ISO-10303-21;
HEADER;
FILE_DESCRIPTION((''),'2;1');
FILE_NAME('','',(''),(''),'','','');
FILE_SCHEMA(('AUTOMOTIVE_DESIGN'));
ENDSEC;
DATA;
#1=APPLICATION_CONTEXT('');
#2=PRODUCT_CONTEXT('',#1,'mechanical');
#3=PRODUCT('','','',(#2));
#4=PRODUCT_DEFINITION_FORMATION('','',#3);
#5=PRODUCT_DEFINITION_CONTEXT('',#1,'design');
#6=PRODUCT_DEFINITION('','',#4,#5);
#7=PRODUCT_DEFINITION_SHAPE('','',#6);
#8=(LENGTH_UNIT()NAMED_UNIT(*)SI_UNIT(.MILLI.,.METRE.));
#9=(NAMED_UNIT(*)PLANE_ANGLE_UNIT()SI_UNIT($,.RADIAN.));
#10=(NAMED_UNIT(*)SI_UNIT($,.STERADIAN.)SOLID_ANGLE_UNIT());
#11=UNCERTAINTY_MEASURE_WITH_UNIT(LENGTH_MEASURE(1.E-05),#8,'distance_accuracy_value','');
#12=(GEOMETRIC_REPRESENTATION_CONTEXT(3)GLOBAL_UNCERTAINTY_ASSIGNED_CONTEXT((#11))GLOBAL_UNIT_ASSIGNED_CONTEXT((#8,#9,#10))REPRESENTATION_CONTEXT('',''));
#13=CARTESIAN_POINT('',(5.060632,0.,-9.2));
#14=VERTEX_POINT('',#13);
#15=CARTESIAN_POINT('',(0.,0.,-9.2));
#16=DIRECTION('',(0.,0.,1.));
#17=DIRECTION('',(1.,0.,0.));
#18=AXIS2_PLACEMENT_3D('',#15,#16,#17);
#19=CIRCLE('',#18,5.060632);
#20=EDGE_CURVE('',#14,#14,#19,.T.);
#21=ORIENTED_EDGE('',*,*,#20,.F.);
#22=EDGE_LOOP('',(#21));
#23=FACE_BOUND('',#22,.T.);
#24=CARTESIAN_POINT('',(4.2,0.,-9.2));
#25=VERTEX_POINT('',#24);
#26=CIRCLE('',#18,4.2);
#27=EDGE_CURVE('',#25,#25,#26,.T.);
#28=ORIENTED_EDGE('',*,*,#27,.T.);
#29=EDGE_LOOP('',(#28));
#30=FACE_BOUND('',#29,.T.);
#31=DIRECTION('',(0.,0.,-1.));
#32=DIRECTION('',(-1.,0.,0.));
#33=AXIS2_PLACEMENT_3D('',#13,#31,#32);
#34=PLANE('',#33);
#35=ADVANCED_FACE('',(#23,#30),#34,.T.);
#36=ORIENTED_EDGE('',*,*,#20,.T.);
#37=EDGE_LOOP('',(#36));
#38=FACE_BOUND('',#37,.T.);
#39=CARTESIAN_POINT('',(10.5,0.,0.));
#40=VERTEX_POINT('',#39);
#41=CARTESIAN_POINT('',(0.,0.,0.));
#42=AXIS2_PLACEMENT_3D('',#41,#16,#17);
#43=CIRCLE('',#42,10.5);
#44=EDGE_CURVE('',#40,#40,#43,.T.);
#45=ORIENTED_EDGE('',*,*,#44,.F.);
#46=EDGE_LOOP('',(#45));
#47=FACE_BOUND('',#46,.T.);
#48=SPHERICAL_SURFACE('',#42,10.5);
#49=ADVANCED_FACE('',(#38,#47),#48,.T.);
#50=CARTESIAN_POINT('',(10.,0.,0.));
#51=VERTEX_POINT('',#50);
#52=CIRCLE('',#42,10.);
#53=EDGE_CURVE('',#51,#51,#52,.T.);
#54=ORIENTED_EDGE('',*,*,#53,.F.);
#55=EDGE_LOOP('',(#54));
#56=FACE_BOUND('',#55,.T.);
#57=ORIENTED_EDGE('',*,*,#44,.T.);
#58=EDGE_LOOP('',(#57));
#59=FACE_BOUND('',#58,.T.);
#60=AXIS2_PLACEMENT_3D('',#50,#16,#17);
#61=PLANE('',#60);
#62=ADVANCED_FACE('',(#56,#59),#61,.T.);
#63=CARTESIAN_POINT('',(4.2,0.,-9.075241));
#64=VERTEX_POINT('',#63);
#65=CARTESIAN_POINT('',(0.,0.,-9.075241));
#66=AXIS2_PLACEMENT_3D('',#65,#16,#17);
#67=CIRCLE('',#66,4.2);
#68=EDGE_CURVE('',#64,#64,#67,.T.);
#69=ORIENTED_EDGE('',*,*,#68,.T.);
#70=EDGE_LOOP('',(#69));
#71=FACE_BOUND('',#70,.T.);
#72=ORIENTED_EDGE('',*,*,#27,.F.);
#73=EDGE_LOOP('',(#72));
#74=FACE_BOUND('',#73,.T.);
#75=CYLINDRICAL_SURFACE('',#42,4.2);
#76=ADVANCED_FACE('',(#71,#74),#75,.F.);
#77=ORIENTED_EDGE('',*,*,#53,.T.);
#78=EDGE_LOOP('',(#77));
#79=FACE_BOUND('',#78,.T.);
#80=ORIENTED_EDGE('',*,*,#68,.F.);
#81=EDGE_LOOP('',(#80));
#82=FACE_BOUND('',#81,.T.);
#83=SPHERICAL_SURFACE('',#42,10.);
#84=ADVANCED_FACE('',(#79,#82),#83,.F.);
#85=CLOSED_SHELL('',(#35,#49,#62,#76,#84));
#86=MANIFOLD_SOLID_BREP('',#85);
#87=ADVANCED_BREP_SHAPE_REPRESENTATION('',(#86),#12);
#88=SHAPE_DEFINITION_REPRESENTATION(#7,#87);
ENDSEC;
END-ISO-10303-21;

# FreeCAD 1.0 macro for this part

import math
import FreeCAD as App
import Part
import Sketcher

V = App.Vector

doc = App.newDocument("Part")
body = doc.addObject("PartDesign::Body", "Body")

sketch1 = body.newObject("Sketcher::SketchObject", "Sketch")
sketch1.AttachmentSupport = (doc.getObject("XZ_Plane"), [""])
sketch1.MapMode = "FlatFace"
sketch1.addGeometry([
    Part.LineSegment(V(10, 0, 0), V(10.5, 0, 0)),
    Part.ArcOfCircle(Part.Circle(V(0, 0, 0), V(0, 0, 1), 10.5), math.radians(-61), math.radians(0)),
    Part.LineSegment(V(5.06, -9.2, 0), V(4.2, -9.2, 0)),
    Part.LineSegment(V(4.2, -9.2, 0), V(4.2, -9.08, 0)),
    Part.ArcOfCircle(Part.Circle(V(0, 0, 0), V(0, 0, 1), 10), math.radians(-65), math.radians(0)),
], False)
sketch1.addConstraint([
    Sketcher.Constraint("Coincident", 0, 2, 1, 2),
    Sketcher.Constraint("Coincident", 1, 1, 2, 1),
    Sketcher.Constraint("Coincident", 2, 2, 3, 1),
    Sketcher.Constraint("Coincident", 3, 2, 4, 1),
    Sketcher.Constraint("Coincident", 4, 2, 0, 1),
    Sketcher.Constraint("Horizontal", 0),
    Sketcher.Constraint("Horizontal", 2),
    Sketcher.Constraint("Vertical", 3),
    Sketcher.Constraint("Coincident", 1, 3, -1, 1),
    Sketcher.Constraint("Coincident", 4, 3, -1, 1),
    Sketcher.Constraint("PointOnObject", 0, 2, -1),
    Sketcher.Constraint("Radius", 4, 10.0),
    Sketcher.Constraint("Radius", 1, 10.5),
    Sketcher.Constraint("DistanceY", 1, 1, -1, 1, 9.2),
    Sketcher.Constraint("DistanceX", -1, 1, 2, 2, 4.2),
])
revolution = body.newObject("PartDesign::Revolution", "Revolution")
revolution.Profile = sketch1
revolution.ReferenceAxis = (sketch1, ["V_Axis"])
revolution.Angle = 360

doc.recompute()
